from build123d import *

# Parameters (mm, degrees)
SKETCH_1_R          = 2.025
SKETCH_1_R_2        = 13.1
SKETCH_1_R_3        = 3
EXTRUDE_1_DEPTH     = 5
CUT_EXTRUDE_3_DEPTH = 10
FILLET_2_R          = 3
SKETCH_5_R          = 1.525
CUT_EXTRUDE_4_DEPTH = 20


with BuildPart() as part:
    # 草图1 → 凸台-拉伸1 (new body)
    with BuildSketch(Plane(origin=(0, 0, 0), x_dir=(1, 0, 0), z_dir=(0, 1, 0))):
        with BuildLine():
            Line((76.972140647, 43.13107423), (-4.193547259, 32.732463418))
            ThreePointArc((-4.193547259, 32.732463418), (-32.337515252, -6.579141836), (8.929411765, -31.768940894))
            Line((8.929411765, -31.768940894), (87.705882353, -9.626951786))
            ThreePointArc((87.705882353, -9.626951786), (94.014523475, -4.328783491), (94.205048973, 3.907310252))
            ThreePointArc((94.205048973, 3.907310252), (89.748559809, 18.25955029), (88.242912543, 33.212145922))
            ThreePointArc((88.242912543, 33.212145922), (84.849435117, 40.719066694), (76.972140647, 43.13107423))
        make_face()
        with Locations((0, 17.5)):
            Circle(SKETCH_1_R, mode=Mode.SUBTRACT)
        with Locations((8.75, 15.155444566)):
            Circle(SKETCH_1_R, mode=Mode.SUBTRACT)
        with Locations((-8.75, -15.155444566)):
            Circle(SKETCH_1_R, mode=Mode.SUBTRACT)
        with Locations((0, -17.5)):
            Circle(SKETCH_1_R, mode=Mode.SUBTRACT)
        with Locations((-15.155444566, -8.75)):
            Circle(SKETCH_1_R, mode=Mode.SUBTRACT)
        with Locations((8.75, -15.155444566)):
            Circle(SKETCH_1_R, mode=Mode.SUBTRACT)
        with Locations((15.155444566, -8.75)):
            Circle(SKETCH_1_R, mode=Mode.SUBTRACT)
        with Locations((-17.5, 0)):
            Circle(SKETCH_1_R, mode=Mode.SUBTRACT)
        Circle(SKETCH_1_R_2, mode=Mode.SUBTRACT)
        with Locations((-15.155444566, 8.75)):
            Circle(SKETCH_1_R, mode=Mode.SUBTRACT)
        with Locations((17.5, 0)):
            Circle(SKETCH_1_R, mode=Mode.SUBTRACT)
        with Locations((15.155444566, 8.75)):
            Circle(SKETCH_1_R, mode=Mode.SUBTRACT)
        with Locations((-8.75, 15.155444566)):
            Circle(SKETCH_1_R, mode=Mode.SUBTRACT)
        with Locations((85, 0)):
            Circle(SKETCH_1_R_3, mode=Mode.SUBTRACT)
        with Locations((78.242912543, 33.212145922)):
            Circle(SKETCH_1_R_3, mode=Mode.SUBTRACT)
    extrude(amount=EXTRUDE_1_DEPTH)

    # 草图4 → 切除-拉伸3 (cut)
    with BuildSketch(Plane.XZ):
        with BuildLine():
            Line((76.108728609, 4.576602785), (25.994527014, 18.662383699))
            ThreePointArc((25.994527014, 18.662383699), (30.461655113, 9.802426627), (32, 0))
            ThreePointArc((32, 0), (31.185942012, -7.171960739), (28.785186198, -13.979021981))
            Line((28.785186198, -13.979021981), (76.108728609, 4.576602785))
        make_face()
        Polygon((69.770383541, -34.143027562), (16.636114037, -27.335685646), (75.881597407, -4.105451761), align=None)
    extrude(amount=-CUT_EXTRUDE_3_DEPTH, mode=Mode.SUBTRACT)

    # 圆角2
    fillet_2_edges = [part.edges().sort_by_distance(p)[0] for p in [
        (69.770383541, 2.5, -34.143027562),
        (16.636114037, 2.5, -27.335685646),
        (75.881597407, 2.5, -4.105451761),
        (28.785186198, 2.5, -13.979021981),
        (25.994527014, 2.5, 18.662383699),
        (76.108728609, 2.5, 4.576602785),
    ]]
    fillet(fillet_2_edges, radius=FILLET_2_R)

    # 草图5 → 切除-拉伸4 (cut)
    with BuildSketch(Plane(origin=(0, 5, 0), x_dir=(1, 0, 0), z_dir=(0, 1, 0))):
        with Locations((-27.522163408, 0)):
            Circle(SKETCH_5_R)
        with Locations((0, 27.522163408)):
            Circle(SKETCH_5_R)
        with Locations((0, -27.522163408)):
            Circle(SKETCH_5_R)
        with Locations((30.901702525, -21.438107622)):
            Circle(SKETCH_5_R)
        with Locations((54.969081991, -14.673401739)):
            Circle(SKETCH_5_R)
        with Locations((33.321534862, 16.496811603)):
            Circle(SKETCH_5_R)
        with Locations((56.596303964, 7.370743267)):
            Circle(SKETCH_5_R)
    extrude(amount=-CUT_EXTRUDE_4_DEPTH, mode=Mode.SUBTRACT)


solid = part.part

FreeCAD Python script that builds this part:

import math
import FreeCAD as App
import Part
import Sketcher

V = App.Vector
Q = App.Units.Quantity


def edges_at(feature, points):
    """Names of the edges that pass closest to the given points."""
    edges = feature.Shape.Edges
    near = lambda p: min(range(len(edges)), key=lambda i: edges[i].distToShape(Part.Vertex(*p))[0])
    return sorted({f"Edge{near(p) + 1}" for p in points})

doc = App.newDocument("Part")
body = doc.addObject("PartDesign::Body", "Body")

# Sketch on XZ plane
sketch1 = body.newObject("Sketcher::SketchObject", "Sketch")
sketch1.AttachmentSupport = (doc.getObject("XZ_Plane"), [""])
sketch1.MapMode = "FlatFace"
sketch1.addGeometry(Part.LineSegment(V(77, -43.1, 0), V(-4.2, -32.7, 0)), False)
sketch1.addGeometry(Part.ArcOfCircle(Part.Circle(V(0, 0, 0), V(0, 0, 1), 33), math.radians(74), math.radians(263)), False)
sketch1.addGeometry(Part.LineSegment(V(8.9, 31.8, 0), V(87.7, 9.6, 0)), False)
sketch1.addGeometry(Part.ArcOfCircle(Part.Circle(V(85, 0, 0), V(0, 0, 1), 10), math.radians(-23), math.radians(74)), False)
sketch1.addGeometry(Part.ArcOfCircle(Part.Circle(V(163.2, -33.2, 0), V(0, 0, 1), 75), math.radians(157), math.radians(180)), False)
sketch1.addGeometry(Part.ArcOfCircle(Part.Circle(V(78.2, -33.2, 0), V(0, 0, 1), 10), math.radians(-97), math.radians(0)), False)
sketch1.addGeometry(Part.Circle(V(-8.8, 15.2, 0), V(0, 0, 1), 2), False)
sketch1.addGeometry(Part.Circle(V(0, 17.5, 0), V(0, 0, 1), 2), False)
sketch1.addGeometry(Part.Circle(V(-15.2, 8.8, 0), V(0, 0, 1), 2), False)
sketch1.addGeometry(Part.Circle(V(8.8, 15.2, 0), V(0, 0, 1), 2), False)
sketch1.addGeometry(Part.Circle(V(15.2, 8.8, 0), V(0, 0, 1), 2), False)
sketch1.addGeometry(Part.Circle(V(-17.5, 0, 0), V(0, 0, 1), 2), False)
sketch1.addGeometry(Part.Circle(V(0, 0, 0), V(0, 0, 1), 13.1), False)
sketch1.addGeometry(Part.Circle(V(17.5, 0, 0), V(0, 0, 1), 2), False)
sketch1.addGeometry(Part.Circle(V(85, 0, 0), V(0, 0, 1), 3), False)
sketch1.addGeometry(Part.Circle(V(-15.2, -8.8, 0), V(0, 0, 1), 2), False)
sketch1.addGeometry(Part.Circle(V(-8.8, -15.2, 0), V(0, 0, 1), 2), False)
sketch1.addGeometry(Part.Circle(V(0, -17.5, 0), V(0, 0, 1), 2), False)
sketch1.addGeometry(Part.Circle(V(15.2, -8.8, 0), V(0, 0, 1), 2), False)
sketch1.addGeometry(Part.Circle(V(8.8, -15.2, 0), V(0, 0, 1), 2), False)
sketch1.addGeometry(Part.Circle(V(78.2, -33.2, 0), V(0, 0, 1), 3), False)
sketch1.addConstraint(Sketcher.Constraint("Tangent", 0, 2, 1, 2))
sketch1.addConstraint(Sketcher.Constraint("Tangent", 1, 1, 2, 1))
sketch1.addConstraint(Sketcher.Constraint("Tangent", 2, 2, 3, 2))
sketch1.addConstraint(Sketcher.Constraint("Tangent", 3, 1, 4, 1))
sketch1.addConstraint(Sketcher.Constraint("Tangent", 4, 2, 5, 2))
sketch1.addConstraint(Sketcher.Constraint("Tangent", 5, 1, 0, 1))
sketch1.addConstraint(Sketcher.Constraint("Coincident", 1, 3, -1, 1))
sketch1.addConstraint(Sketcher.Constraint("Coincident", 12, 3, -1, 1))
sketch1.addConstraint(Sketcher.Constraint("Coincident", 14, 3, 3, 3))
sketch1.addConstraint(Sketcher.Constraint("Coincident", 20, 3, 5, 3))
sketch1.addConstraint(Sketcher.Constraint("Equal", 3, 5))
sketch1.addConstraint(Sketcher.Constraint("Equal", 6, 7))
sketch1.addConstraint(Sketcher.Constraint("Equal", 7, 8))
sketch1.addConstraint(Sketcher.Constraint("Equal", 8, 9))
sketch1.addConstraint(Sketcher.Constraint("Equal", 9, 10))
sketch1.addConstraint(Sketcher.Constraint("Equal", 10, 11))
sketch1.addConstraint(Sketcher.Constraint("Equal", 11, 13))
sketch1.addConstraint(Sketcher.Constraint("Equal", 13, 15))
sketch1.addConstraint(Sketcher.Constraint("Equal", 15, 16))
sketch1.addConstraint(Sketcher.Constraint("Equal", 16, 17))
sketch1.addConstraint(Sketcher.Constraint("Equal", 17, 18))
sketch1.addConstraint(Sketcher.Constraint("Equal", 18, 19))
sketch1.addConstraint(Sketcher.Constraint("Equal", 14, 20))
sketch1.addConstraint(Sketcher.Constraint("Symmetric", 11, 3, 13, 3, -1, 1))
sketch1.addConstraint(Sketcher.Constraint("Symmetric", 10, 3, 15, 3, -1, 1))
sketch1.addConstraint(Sketcher.Constraint("Symmetric", 9, 3, 16, 3, -1, 1))
sketch1.addConstraint(Sketcher.Constraint("Symmetric", 7, 3, 17, 3, -1, 1))
sketch1.addConstraint(Sketcher.Constraint("Symmetric", 8, 3, 18, 3, -1, 1))
sketch1.addConstraint(Sketcher.Constraint("Symmetric", 6, 3, 19, 3, -1, 1))
sketch1.addConstraint(Sketcher.Constraint("Symmetric", 6, 3, 9, 3, -2))
sketch1.addConstraint(Sketcher.Constraint("Symmetric", 8, 3, 10, 3, -2))
sketch1.addConstraint(Sketcher.Constraint("PointOnObject", 3, 3, -1))
sketch1.addConstraint(Sketcher.Constraint("PointOnObject", 7, 3, -2))
sketch1.addConstraint(Sketcher.Constraint("PointOnObject", 11, 3, -1))
sketch1.addConstraint(Sketcher.Constraint("Horizontal", 4, 3, 5, 3))
sketch1.addConstraint(Sketcher.Constraint("Equal", 0, 2))
sketch1.addConstraint(Sketcher.Constraint("Diameter", 14, 6.0))
sketch1.addConstraint(Sketcher.Constraint("Radius", 1, 33.0))
sketch1.addConstraint(Sketcher.Constraint("Radius", 3, 10.0))
sketch1.addConstraint(Sketcher.Constraint("Radius", 4, 75.0))
sketch1.addConstraint(Sketcher.Constraint("Diameter", 12, 26.2))
sketch1.addConstraint(Sketcher.Constraint("Diameter", 6, 4.05))
sketch1.addConstraint(Sketcher.Constraint("DistanceY", -1, 1, 7, 3, 17.5))
sketch1.addConstraint(Sketcher.Constraint("DistanceX", 11, 3, -1, 1, 17.5))
sketch1.addConstraint(Sketcher.Constraint("DistanceX", 6, 3, 9, 3, 17.5))
sketch1.addConstraint(Sketcher.Constraint("DistanceY", 15, 3, 8, 3, 17.5))
sketch1.addConstraint(Sketcher.Constraint("DistanceX", -1, 1, 3, 1, 94.205049))
sketch1.addConstraint(Sketcher.Constraint("DistanceY", 5, 3, 6, 3, 48.36759))
sketch1.addConstraint(Sketcher.Constraint("DistanceX", 8, 3, 10, 3, 30.310889))
pad1 = body.newObject("PartDesign::Pad", "Pad")
pad1.Profile = sketch1
pad1.Length = 5
pad1.Reversed = True

# Sketch on XZ plane
sketch2 = body.newObject("Sketcher::SketchObject", "Sketch001")
sketch2.AttachmentSupport = (doc.getObject("XZ_Plane"), [""])
sketch2.MapMode = "FlatFace"
sketch2.addGeometry(Part.LineSegment(V(76, 5, 0), V(26, 19, 0)), False)
sketch2.addGeometry(Part.ArcOfCircle(Part.Circle(V(0, 0, 0), V(0, 0, 1), 32), math.radians(0), math.radians(36)), False)
sketch2.addGeometry(Part.ArcOfCircle(Part.Circle(V(0, 0, 0), V(0, 0, 1), 32), math.radians(-26), math.radians(0)), False)
sketch2.addGeometry(Part.LineSegment(V(29, -14, 0), V(76, 5, 0)), False)
sketch2.addGeometry(Part.LineSegment(V(17, -27, 0), V(70, -34, 0)), False)
sketch2.addGeometry(Part.LineSegment(V(70, -34, 0), V(76, -4, 0)), False)
sketch2.addGeometry(Part.LineSegment(V(76, -4, 0), V(17, -27, 0)), False)
sketch2.addConstraint(Sketcher.Constraint("Coincident", 0, 2, 1, 2))
sketch2.addConstraint(Sketcher.Constraint("Tangent", 1, 1, 2, 2))
sketch2.addConstraint(Sketcher.Constraint("Coincident", 2, 1, 3, 1))
sketch2.addConstraint(Sketcher.Constraint("Coincident", 3, 2, 0, 1))
sketch2.addConstraint(Sketcher.Constraint("Coincident", 4, 2, 5, 1))
sketch2.addConstraint(Sketcher.Constraint("Coincident", 5, 2, 6, 1))
sketch2.addConstraint(Sketcher.Constraint("Coincident", 6, 2, 4, 1))
sketch2.addConstraint(Sketcher.Constraint("Coincident", 1, 3, -1, 1))
sketch2.addConstraint(Sketcher.Constraint("Equal", 1, 2))
sketch2.addConstraint(Sketcher.Constraint("PointOnObject", 1, 1, -1))
sketch2.addConstraint(Sketcher.Constraint("Parallel", 3, 6))
sketch2.addConstraint(Sketcher.Constraint("Radius", 1, 32.0))
sketch2.addConstraint(Sketcher.Constraint("Angle", 5, Q("78.5 deg")))
sketch2.addConstraint(Sketcher.Constraint("DistanceX", 0, 2, 3, 2, 50.114202))
sketch2.addConstraint(Sketcher.Constraint("Distance", 4, 53.568559))
sketch2.addConstraint(Sketcher.Constraint("DistanceY", 2, 1, -1, 1, 13.979022))
sketch2.addConstraint(Sketcher.Constraint("DistanceX", -1, 1, 3, 2, 76.108729))
sketch2.addConstraint(Sketcher.Constraint("DistanceY", 5, 2, -1, 1, 4.105452))
sketch2.addConstraint(Sketcher.Constraint("DistanceY", 3, 2, 0, 2, 14.085781))
sketch2.addConstraint(Sketcher.Constraint("DistanceY", 4, 2, 3, 2, 38.71963))
sketch2.addConstraint(Sketcher.Constraint("DistanceX", 5, 2, 3, 2, 0.227131))
pocket1 = body.newObject("PartDesign::Pocket", "Pocket")
pocket1.Profile = sketch2
pocket1.Length = 10
doc.recompute()

fillet = body.newObject("PartDesign::Fillet", "Fillet")
fillet.Base = (pocket1, edges_at(pocket1, [
    (69.77, 2.5, -34.143),
    (16.636, 2.5, -27.336),
    (75.882, 2.5, -4.105),
    (28.785, 2.5, -13.979),
    (25.995, 2.5, 18.662),
    (76.109, 2.5, 4.577),
]))
fillet.Radius = 3

# Sketch on XZ plane
sketch3 = body.newObject("Sketcher::SketchObject", "Sketch002")
sketch3.AttachmentSupport = (doc.getObject("XZ_Plane"), [""])
sketch3.MapMode = "FlatFace"
sketch3.AttachmentOffset = App.Placement(V(0, 0, -5), App.Rotation())
sketch3.addGeometry(Part.Circle(V(-27.5, 0, 0), V(0, 0, 1), 1.5), False)
sketch3.addGeometry(Part.Circle(V(0, -27.5, 0), V(0, 0, 1), 1.5), False)
sketch3.addGeometry(Part.Circle(V(0, 27.5, 0), V(0, 0, 1), 1.5), False)
sketch3.addGeometry(Part.Circle(V(30.9, 21.4, 0), V(0, 0, 1), 1.5), False)
sketch3.addGeometry(Part.Circle(V(55, 14.7, 0), V(0, 0, 1), 1.5), False)
sketch3.addGeometry(Part.Circle(V(33.3, -16.5, 0), V(0, 0, 1), 1.5), False)
sketch3.addGeometry(Part.Circle(V(56.6, -7.4, 0), V(0, 0, 1), 1.5), False)
sketch3.addConstraint(Sketcher.Constraint("Equal", 0, 1))
sketch3.addConstraint(Sketcher.Constraint("Equal", 1, 2))
sketch3.addConstraint(Sketcher.Constraint("Equal", 2, 3))
sketch3.addConstraint(Sketcher.Constraint("Equal", 3, 4))
sketch3.addConstraint(Sketcher.Constraint("Equal", 4, 5))
sketch3.addConstraint(Sketcher.Constraint("Equal", 5, 6))
sketch3.addConstraint(Sketcher.Constraint("Symmetric", 1, 3, 2, 3, -1, 1))
sketch3.addConstraint(Sketcher.Constraint("PointOnObject", 0, 3, -1))
sketch3.addConstraint(Sketcher.Constraint("PointOnObject", 1, 3, -2))
sketch3.addConstraint(Sketcher.Constraint("Diameter", 0, 3.05))
sketch3.addConstraint(Sketcher.Constraint("DistanceY", -1, 1, 4, 3, 14.673402))
sketch3.addConstraint(Sketcher.Constraint("DistanceX", 0, 3, 5, 3, 60.843698))
sketch3.addConstraint(Sketcher.Constraint("DistanceX", 3, 3, 6, 3, 25.694601))
sketch3.addConstraint(Sketcher.Constraint("DistanceX", -1, 1, 4, 3, 54.969082))
sketch3.addConstraint(Sketcher.Constraint("DistanceY", 5, 3, -1, 1, 16.496812))
sketch3.addConstraint(Sketcher.Constraint("DistanceY", 1, 3, 3, 3, 48.960271))
sketch3.addConstraint(Sketcher.Constraint("DistanceX", 3, 3, 4, 3, 24.067379))
sketch3.addConstraint(Sketcher.Constraint("DistanceY", 4, 3, 2, 3, 12.848762))
sketch3.addConstraint(Sketcher.Constraint("DistanceX", 5, 3, 6, 3, 23.274769))
sketch3.addConstraint(Sketcher.Constraint("DistanceY", 5, 3, 6, 3, 9.126068))
pocket2 = body.newObject("PartDesign::Pocket", "Pocket001")
pocket2.Profile = sketch3
pocket2.Length = 20
pocket2.Reversed = True

doc.recompute()
